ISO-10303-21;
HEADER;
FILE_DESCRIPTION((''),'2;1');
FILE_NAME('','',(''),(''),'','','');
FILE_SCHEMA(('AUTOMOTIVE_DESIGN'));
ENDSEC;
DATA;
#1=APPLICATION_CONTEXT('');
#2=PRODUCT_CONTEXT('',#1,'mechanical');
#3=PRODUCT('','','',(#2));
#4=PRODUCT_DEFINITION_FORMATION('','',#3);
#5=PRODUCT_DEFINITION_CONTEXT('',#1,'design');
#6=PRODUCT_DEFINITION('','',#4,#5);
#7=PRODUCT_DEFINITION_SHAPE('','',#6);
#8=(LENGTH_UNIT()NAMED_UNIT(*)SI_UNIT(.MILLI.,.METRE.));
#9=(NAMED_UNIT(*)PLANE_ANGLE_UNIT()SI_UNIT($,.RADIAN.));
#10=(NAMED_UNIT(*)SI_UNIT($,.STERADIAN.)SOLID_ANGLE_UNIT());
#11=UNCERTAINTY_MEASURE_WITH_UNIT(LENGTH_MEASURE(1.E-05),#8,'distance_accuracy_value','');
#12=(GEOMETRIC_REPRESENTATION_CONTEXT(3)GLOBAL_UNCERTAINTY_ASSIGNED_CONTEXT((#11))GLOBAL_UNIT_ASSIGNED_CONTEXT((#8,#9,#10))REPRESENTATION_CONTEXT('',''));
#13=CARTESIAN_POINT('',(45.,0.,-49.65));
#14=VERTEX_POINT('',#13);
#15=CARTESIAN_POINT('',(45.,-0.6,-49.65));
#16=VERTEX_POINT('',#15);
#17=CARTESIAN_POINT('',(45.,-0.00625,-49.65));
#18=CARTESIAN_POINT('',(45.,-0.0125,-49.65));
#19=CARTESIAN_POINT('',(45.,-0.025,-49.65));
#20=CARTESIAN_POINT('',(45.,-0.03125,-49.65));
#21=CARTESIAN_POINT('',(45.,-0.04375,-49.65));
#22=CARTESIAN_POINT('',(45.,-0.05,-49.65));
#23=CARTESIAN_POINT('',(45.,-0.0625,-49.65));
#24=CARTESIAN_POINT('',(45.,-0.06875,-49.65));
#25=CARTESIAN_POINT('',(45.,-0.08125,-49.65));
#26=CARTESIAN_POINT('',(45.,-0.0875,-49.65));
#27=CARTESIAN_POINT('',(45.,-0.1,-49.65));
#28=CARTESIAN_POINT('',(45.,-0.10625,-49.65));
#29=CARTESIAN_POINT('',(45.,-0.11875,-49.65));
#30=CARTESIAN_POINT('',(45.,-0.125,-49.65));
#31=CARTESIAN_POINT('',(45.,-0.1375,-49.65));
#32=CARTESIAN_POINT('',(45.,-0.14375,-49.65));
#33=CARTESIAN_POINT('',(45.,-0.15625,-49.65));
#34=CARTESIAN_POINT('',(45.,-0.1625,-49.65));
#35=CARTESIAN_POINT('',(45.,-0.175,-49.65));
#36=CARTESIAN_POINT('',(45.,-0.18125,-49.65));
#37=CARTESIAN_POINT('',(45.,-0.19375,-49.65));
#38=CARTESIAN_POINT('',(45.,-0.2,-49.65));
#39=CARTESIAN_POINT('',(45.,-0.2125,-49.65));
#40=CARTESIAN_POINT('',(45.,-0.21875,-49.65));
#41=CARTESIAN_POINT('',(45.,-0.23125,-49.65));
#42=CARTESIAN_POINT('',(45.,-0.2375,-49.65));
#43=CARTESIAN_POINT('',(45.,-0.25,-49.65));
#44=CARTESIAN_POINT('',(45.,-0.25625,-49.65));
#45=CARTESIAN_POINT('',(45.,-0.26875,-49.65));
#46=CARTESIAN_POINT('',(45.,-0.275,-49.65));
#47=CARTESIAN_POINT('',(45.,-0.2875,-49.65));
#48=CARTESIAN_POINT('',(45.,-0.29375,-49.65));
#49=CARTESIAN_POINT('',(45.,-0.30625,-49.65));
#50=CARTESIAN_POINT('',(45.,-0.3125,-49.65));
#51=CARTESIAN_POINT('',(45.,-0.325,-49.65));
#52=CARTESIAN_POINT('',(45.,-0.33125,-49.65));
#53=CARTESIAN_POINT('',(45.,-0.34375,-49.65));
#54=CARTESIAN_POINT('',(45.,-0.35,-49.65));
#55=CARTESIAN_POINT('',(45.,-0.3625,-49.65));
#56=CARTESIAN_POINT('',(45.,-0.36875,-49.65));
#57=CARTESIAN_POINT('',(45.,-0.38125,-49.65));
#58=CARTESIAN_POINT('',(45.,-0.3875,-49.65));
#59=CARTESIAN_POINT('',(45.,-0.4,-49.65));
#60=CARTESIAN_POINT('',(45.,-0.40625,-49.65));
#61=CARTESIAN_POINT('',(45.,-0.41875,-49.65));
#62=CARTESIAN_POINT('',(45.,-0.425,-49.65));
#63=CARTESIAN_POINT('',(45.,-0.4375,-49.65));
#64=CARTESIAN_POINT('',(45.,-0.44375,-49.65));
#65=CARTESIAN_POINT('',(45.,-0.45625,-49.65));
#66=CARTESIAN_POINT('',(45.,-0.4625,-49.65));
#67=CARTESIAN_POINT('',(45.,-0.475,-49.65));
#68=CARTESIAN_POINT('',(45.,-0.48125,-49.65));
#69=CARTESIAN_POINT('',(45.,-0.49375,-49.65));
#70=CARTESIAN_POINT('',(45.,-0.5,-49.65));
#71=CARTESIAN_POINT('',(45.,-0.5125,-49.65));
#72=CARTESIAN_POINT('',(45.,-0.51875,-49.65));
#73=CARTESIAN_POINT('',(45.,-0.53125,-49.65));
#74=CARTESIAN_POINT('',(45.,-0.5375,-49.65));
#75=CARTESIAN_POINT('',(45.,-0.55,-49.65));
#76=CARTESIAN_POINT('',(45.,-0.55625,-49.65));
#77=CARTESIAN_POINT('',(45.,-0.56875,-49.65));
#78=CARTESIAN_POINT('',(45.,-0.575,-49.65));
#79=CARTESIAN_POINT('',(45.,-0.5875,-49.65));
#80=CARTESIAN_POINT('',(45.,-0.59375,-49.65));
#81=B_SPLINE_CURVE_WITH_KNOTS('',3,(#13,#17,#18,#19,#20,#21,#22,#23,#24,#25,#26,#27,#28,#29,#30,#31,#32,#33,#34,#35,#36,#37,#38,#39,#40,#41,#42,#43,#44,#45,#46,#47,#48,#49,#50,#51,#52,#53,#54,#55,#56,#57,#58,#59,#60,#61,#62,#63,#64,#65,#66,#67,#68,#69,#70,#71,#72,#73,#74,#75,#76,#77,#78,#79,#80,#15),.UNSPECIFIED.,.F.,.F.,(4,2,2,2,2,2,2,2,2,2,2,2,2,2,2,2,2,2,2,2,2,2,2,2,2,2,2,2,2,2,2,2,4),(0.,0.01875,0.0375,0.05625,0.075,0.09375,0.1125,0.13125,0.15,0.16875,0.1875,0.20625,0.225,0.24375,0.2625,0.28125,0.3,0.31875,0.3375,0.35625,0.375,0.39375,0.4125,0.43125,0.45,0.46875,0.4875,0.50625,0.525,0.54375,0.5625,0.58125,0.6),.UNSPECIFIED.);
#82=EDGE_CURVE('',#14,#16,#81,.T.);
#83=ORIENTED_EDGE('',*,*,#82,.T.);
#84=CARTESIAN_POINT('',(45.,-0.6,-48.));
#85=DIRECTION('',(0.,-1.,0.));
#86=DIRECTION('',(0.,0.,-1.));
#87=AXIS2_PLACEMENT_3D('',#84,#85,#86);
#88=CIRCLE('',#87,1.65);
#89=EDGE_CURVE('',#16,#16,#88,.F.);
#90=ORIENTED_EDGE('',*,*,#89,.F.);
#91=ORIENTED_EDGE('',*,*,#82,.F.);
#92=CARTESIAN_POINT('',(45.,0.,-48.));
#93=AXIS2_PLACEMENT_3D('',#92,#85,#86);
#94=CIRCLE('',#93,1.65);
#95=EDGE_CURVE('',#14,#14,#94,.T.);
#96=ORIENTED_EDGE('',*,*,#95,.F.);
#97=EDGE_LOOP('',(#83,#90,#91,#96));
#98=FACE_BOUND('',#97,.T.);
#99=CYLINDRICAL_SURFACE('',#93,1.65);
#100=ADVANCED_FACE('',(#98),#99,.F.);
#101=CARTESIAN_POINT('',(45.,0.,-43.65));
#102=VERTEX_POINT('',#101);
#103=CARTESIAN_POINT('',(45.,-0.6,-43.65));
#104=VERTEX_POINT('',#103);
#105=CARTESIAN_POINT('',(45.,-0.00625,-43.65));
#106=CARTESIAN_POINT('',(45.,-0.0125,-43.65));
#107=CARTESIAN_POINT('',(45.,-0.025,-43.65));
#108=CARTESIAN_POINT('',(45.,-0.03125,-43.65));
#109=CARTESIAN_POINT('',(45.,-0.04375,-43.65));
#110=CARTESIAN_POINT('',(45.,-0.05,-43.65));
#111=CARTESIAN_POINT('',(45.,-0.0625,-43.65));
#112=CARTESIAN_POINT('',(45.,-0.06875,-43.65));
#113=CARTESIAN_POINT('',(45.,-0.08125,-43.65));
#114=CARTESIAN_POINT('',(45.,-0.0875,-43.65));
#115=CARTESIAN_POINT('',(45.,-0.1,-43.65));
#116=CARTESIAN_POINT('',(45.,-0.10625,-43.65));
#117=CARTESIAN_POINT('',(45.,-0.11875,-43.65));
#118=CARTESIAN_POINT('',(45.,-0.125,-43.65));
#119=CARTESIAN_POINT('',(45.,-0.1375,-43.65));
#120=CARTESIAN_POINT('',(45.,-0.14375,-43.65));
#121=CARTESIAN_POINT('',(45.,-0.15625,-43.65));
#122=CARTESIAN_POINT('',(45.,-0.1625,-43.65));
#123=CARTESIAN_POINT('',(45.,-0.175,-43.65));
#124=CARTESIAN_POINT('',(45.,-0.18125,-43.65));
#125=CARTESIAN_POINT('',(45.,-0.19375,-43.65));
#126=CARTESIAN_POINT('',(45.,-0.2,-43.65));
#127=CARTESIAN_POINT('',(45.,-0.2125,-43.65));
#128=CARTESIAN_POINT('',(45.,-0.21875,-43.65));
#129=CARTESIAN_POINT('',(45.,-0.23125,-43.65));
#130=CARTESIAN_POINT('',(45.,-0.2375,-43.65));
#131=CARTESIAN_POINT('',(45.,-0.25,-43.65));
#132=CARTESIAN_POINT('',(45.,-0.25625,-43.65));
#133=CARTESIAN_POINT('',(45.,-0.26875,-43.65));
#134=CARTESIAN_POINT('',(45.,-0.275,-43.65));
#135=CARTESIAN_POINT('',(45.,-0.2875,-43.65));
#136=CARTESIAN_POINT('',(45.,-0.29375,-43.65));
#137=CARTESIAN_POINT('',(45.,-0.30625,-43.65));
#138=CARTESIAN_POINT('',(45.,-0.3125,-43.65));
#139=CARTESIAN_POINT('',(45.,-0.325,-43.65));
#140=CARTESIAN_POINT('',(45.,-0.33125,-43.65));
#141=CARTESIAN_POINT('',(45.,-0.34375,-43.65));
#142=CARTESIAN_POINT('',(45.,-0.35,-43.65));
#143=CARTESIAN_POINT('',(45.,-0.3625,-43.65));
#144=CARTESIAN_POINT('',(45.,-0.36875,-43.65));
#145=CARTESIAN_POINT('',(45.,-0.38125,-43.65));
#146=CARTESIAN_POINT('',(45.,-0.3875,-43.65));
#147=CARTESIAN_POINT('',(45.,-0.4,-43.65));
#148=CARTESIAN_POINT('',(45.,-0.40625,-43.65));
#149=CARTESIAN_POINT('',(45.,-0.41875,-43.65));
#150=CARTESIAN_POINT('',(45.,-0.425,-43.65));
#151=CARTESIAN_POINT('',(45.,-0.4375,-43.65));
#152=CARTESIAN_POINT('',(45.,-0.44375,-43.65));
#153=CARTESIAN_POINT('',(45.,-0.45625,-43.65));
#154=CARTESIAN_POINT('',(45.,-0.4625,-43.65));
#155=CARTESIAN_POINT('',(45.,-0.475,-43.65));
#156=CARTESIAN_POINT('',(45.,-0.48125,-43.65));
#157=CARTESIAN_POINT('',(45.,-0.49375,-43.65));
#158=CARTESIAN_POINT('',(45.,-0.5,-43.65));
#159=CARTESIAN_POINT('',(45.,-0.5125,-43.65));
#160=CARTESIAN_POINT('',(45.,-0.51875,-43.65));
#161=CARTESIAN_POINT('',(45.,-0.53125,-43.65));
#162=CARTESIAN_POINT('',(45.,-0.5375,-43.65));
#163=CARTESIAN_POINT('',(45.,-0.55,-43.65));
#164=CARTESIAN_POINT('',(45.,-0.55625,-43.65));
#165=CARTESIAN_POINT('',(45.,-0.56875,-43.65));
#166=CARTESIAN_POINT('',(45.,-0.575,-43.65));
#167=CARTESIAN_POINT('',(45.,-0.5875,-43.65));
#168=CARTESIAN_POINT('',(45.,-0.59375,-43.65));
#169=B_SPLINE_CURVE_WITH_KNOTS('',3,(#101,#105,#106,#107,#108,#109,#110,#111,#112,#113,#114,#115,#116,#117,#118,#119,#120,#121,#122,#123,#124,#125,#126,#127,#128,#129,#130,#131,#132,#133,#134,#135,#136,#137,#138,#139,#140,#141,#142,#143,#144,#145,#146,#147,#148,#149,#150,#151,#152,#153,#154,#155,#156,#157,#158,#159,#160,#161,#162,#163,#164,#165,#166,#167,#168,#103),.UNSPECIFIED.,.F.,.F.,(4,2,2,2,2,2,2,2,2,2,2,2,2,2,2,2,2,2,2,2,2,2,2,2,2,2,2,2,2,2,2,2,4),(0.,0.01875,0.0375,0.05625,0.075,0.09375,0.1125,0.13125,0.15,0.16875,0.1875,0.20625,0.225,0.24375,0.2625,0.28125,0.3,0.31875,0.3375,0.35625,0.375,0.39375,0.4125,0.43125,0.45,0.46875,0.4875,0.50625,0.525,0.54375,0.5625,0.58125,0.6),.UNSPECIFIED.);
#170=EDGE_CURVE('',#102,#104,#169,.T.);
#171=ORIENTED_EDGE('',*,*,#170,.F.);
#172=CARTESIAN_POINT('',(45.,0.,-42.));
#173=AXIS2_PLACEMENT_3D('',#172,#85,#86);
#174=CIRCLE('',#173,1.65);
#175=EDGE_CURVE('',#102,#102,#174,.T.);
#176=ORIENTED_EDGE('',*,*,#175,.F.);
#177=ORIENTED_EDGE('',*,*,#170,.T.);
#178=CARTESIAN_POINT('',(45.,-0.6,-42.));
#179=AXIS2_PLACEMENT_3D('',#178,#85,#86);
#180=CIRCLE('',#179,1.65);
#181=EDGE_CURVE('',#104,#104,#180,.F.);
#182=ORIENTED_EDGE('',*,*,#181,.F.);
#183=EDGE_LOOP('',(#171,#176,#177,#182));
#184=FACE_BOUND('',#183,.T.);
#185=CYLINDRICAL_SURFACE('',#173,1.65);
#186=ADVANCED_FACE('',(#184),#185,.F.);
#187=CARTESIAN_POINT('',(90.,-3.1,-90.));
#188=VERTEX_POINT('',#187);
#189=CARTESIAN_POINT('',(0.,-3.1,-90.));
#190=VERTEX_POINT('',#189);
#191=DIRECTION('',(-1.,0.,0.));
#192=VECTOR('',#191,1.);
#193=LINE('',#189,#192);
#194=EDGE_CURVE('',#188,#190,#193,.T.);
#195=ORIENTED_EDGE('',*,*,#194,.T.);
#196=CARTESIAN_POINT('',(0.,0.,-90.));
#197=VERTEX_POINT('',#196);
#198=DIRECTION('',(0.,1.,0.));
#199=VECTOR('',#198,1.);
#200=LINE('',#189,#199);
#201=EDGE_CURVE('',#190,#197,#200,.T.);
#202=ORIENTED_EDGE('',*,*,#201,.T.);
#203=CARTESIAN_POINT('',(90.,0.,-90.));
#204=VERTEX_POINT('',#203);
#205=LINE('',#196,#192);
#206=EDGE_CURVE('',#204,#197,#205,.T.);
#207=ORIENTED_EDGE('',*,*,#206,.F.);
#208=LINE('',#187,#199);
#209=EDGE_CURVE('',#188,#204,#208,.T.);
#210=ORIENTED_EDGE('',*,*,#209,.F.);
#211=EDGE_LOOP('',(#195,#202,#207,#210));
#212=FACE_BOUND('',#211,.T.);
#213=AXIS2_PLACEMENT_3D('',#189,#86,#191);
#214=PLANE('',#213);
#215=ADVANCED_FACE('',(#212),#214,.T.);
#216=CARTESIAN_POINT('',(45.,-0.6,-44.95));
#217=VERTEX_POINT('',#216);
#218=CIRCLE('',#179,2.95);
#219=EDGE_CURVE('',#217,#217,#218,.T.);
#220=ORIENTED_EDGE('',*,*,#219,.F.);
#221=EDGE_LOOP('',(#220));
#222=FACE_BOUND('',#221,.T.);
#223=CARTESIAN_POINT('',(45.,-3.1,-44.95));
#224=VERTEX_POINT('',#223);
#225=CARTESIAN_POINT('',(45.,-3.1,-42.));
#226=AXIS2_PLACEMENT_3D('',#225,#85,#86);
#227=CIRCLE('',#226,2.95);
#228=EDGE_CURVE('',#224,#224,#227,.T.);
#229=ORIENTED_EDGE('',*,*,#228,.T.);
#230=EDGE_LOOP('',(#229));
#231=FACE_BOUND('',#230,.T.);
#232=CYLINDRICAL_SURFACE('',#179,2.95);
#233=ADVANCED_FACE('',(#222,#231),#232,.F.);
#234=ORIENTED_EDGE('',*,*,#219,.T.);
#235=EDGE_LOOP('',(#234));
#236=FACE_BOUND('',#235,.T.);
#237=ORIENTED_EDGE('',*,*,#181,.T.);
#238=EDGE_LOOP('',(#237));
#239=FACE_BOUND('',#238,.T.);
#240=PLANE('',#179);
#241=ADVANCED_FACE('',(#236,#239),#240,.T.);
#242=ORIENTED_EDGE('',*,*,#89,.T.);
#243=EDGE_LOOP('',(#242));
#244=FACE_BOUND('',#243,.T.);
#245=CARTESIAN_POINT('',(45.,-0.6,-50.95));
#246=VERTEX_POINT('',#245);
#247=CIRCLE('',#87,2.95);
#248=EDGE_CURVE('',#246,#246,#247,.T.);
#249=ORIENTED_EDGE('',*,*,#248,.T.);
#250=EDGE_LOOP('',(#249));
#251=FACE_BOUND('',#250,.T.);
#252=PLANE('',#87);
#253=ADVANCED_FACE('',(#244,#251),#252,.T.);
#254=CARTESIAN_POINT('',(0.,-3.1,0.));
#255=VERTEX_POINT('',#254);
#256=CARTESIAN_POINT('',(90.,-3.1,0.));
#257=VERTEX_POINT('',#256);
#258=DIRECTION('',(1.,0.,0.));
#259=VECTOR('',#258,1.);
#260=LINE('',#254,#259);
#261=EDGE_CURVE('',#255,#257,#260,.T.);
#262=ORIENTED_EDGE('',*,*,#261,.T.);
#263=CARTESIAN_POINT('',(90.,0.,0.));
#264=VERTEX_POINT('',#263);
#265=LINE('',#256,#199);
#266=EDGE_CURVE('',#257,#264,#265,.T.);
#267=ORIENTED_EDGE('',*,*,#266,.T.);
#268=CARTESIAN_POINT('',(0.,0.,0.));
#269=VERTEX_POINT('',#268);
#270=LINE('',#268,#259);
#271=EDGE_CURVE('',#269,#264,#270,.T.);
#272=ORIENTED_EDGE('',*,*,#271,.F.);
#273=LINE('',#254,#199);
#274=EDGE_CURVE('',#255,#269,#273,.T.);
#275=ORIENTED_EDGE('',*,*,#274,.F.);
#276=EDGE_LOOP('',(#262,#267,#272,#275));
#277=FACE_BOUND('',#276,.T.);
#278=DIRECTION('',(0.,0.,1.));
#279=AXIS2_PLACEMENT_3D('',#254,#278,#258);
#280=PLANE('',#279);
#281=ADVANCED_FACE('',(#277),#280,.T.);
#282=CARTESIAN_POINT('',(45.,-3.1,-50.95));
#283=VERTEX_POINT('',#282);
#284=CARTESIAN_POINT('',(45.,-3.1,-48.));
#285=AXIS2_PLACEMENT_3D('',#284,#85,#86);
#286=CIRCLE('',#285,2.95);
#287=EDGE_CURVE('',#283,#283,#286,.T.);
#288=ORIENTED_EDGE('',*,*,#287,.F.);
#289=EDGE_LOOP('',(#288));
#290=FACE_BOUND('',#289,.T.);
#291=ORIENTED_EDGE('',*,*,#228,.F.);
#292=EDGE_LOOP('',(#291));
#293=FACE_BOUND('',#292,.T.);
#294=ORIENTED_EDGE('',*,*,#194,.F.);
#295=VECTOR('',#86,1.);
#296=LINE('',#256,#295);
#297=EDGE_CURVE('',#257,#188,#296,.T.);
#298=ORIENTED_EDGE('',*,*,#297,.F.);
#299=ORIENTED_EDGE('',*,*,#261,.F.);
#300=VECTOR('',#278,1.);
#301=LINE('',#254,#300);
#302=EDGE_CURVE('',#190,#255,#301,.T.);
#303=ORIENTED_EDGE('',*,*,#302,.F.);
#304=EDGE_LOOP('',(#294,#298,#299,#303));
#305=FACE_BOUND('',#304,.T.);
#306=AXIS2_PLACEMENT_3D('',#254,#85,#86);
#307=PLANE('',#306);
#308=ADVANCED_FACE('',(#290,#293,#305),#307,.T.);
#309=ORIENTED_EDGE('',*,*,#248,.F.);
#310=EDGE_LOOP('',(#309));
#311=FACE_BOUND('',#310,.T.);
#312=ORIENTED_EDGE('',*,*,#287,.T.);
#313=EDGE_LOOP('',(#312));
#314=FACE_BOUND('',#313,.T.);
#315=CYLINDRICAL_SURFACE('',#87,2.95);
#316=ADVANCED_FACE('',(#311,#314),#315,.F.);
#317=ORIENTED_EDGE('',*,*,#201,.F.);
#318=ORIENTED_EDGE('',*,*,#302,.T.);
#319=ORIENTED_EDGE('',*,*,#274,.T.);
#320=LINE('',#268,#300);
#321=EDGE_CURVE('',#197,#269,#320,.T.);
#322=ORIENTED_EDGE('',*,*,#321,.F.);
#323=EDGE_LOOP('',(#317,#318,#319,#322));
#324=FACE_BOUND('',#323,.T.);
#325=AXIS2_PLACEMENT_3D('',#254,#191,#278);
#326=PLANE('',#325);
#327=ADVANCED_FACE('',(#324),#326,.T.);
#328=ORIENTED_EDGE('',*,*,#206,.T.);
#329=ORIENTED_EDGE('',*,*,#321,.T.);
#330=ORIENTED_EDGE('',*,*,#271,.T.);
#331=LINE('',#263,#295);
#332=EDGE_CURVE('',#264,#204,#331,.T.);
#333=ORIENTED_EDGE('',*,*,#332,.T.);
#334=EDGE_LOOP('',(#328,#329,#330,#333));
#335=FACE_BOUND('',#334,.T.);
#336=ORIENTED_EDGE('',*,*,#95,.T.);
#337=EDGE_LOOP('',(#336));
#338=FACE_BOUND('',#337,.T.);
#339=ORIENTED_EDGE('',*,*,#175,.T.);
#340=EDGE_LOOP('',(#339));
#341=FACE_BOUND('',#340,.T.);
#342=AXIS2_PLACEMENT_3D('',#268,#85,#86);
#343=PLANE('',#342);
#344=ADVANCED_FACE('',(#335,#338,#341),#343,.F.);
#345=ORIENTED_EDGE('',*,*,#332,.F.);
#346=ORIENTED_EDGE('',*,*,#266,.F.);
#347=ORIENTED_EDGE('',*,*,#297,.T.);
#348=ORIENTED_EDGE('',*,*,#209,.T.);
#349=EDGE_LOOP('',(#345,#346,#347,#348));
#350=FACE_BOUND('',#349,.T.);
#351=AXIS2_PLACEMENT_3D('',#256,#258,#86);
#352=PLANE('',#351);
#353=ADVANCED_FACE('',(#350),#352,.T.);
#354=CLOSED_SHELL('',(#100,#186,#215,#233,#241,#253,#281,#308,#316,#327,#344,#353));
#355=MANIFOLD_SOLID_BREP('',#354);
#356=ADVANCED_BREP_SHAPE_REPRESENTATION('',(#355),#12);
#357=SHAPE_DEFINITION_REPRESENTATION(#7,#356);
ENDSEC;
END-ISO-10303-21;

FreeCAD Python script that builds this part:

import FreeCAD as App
import Part
import Sketcher

V = App.Vector


def add_polygon(sketch, points):
    """Adds a closed chain of lines whose ends are joined by coincident constraints."""
    first, n = sketch.GeometryCount, len(points)
    for a, b in zip(points, points[1:] + points[:1]):
        sketch.addGeometry(Part.LineSegment(App.Vector(*a, 0), App.Vector(*b, 0)), False)
    for i in range(n):
        sketch.addConstraint(Sketcher.Constraint("Coincident", first + i, 2, first + (i + 1) % n, 1))

doc = App.newDocument("Part")
body = doc.addObject("PartDesign::Body", "Body")

sketch1 = doc.addObject("Sketcher::SketchObject", "Sketch")
body.addObject(sketch1)
sketch1.AttachmentSupport = (doc.XZ_Plane, [""])
sketch1.MapMode = "FlatFace"
add_polygon(sketch1, [(0, -90), (0, 0), (90, 0), (90, -90)])
sketch1.addConstraint(Sketcher.Constraint("Vertical", 0))
sketch1.addConstraint(Sketcher.Constraint("Horizontal", 1))
sketch1.addConstraint(Sketcher.Constraint("Vertical", 2))
sketch1.addConstraint(Sketcher.Constraint("Horizontal", 3))
sketch1.addConstraint(Sketcher.Constraint("Coincident", 0, 2, -1, 1))
sketch1.addConstraint(Sketcher.Constraint("Equal", 3, 0))
sketch1.addConstraint(Sketcher.Constraint("DistanceX", 1, 1, 1, 2, 90.0))
pad1 = doc.addObject("PartDesign::Pad", "Pad")
body.addObject(pad1)
pad1.Profile = sketch1
pad1.Length = 3.1

sketch2 = doc.addObject("Sketcher::SketchObject", "Sketch001")
body.addObject(sketch2)
sketch2.AttachmentSupport = (doc.XZ_Plane, [""])
sketch2.MapMode = "FlatFace"
sketch2.AttachmentOffset = App.Placement(V(0, 0, 3.1), App.Rotation())
sketch2.addGeometry(Part.Circle(V(45, -42, 0), V(0, 0, 1), 1.65), False)
sketch2.addGeometry(Part.Circle(V(45, -48, 0), V(0, 0, 1), 1.65), False)
sketch2.addConstraint(Sketcher.Constraint("Equal", 0, 1))
sketch2.addConstraint(Sketcher.Constraint("Vertical", 0, 3, 1, 3))
sketch2.addConstraint(Sketcher.Constraint("Diameter", 0, 3.3))
sketch2.addConstraint(Sketcher.Constraint("DistanceX", -1, 1, 0, 3, 45.0))
sketch2.addConstraint(Sketcher.Constraint("DistanceY", 0, 3, -1, 1, 42.0))
sketch2.addConstraint(Sketcher.Constraint("DistanceY", 1, 3, -1, 1, 48.0))
pocket1 = doc.addObject("PartDesign::Pocket", "Pocket")
body.addObject(pocket1)
pocket1.Profile = sketch2
pocket1.Type = "ThroughAll"

sketch3 = doc.addObject("Sketcher::SketchObject", "Sketch002")
body.addObject(sketch3)
sketch3.AttachmentSupport = (doc.XZ_Plane, [""])
sketch3.MapMode = "FlatFace"
sketch3.AttachmentOffset = App.Placement(V(0, 0, 3.1), App.Rotation())
sketch3.addGeometry(Part.Circle(V(45, -42, 0), V(0, 0, 1), 2.95), False)
sketch3.addGeometry(Part.Circle(V(45, -48, 0), V(0, 0, 1), 2.95), False)
sketch3.addConstraint(Sketcher.Constraint("Equal", 0, 1))
sketch3.addConstraint(Sketcher.Constraint("Vertical", 0, 3, 1, 3))
sketch3.addConstraint(Sketcher.Constraint("Diameter", 0, 5.9))
sketch3.addConstraint(Sketcher.Constraint("DistanceX", -1, 1, 0, 3, 45.0))
sketch3.addConstraint(Sketcher.Constraint("DistanceY", 0, 3, -1, 1, 42.0))
sketch3.addConstraint(Sketcher.Constraint("DistanceY", 1, 3, -1, 1, 48.0))
pocket2 = doc.addObject("PartDesign::Pocket", "Pocket001")
body.addObject(pocket2)
pocket2.Profile = sketch3
pocket2.Length = 2.5

doc.recompute()
